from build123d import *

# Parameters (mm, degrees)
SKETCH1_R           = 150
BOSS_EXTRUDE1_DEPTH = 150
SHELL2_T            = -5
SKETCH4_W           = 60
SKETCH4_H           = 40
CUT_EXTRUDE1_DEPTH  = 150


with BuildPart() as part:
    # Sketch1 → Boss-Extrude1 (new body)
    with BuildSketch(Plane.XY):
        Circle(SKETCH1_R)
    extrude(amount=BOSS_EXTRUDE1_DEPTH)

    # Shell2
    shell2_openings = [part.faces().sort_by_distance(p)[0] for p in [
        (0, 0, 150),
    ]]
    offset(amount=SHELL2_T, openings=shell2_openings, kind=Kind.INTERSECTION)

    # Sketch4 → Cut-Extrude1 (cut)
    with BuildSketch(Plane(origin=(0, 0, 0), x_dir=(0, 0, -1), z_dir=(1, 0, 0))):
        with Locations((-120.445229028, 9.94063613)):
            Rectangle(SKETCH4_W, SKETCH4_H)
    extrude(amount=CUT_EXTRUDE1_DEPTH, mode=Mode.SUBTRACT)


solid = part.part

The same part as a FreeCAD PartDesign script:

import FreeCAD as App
import Part
import Sketcher
from FreeCAD import Vector
Q = App.Units.Quantity


def faces_at(feature, points):
    """Names of the faces that lie closest to the given points."""
    faces = feature.Shape.Faces
    near = lambda p: min(range(len(faces)), key=lambda i: faces[i].distToShape(Part.Vertex(*p))[0])
    return sorted({f"Face{near(p) + 1}" for p in points})

doc = App.newDocument("Part")
params = doc.addObject("Spreadsheet::Sheet", "Params")
for row, (alias, value) in enumerate([
    ("sketch1_diameter", "300 mm"),
    ("pad1_length", "150 mm"),
    ("thickness_wall", "5 mm"),
    ("sketch2_width", "40 mm"),
    ("sketch2_height", "60 mm"),
    ("pocket1_length", "150 mm"),
], start=1):
    params.set(f"A{row}", alias)
    params.set(f"B{row}", "=" + value)
    params.setAlias(f"B{row}", alias)

body = doc.addObject("PartDesign::Body", "Body")

# Sketch on XY plane
sketch1 = body.newObject("Sketcher::SketchObject", "Sketch")
sketch1.AttachmentSupport = (doc.getObject("XY_Plane"), [""])
sketch1.MapMode = "FlatFace"
sketch1.addGeometry(Part.Circle(Vector(0, 0, 0), Vector(0, 0, 1), 150), False)
sketch1.addConstraint([
    Sketcher.Constraint("Coincident", 0, 3, -1, 1),
    Sketcher.Constraint("Diameter", 0, Q("300 mm")),
])
sketch1.setExpression("Constraints[1]", "Params.sketch1_diameter")
pad1 = body.newObject("PartDesign::Pad", "Pad")
pad1.Profile = sketch1
pad1.setExpression("Length", "Params.pad1_length")
doc.recompute()

thickness = body.newObject("PartDesign::Thickness", "Thickness")
thickness.Base = (pad1, faces_at(pad1, [(0, 0, 150)]))
thickness.setExpression("Value", "Params.thickness_wall")
thickness.Reversed = True
thickness.Join = "Intersection"

# Sketch on YZ plane
sketch2 = body.newObject("Sketcher::SketchObject", "Sketch001")
sketch2.AttachmentSupport = (doc.getObject("YZ_Plane"), [""])
sketch2.MapMode = "FlatFace"
sketch2.addGeometry([
    Part.LineSegment(Vector(30, 150, 0), Vector(-10, 150, 0)),
    Part.LineSegment(Vector(-10, 150, 0), Vector(-10, 90, 0)),
    Part.LineSegment(Vector(-10, 90, 0), Vector(30, 90, 0)),
    Part.LineSegment(Vector(30, 90, 0), Vector(30, 150, 0)),
], False)
sketch2.addConstraint([
    Sketcher.Constraint("Coincident", 0, 2, 1, 1),
    Sketcher.Constraint("Coincident", 1, 2, 2, 1),
    Sketcher.Constraint("Coincident", 2, 2, 3, 1),
    Sketcher.Constraint("Coincident", 3, 2, 0, 1),
    Sketcher.Constraint("Horizontal", 0),
    Sketcher.Constraint("Vertical", 1),
    Sketcher.Constraint("Horizontal", 2),
    Sketcher.Constraint("Vertical", 3),
    Sketcher.Constraint("DistanceX", 0, 2, 0, 1, Q("40 mm")),
    Sketcher.Constraint("DistanceY", 1, 2, 1, 1, Q("60 mm")),
    Sketcher.Constraint("DistanceY", -1, 1, 0, 2, Q("150.445229 mm")),
    Sketcher.Constraint("DistanceX", 0, 2, -1, 1, Q("10.059364 mm")),
])
sketch2.setExpression("Constraints[8]", "Params.sketch2_width")
sketch2.setExpression("Constraints[9]", "Params.sketch2_height")
pocket1 = body.newObject("PartDesign::Pocket", "Pocket")
pocket1.Profile = sketch2
pocket1.setExpression("Length", "Params.pocket1_length")
pocket1.Reversed = True

doc.recompute()
